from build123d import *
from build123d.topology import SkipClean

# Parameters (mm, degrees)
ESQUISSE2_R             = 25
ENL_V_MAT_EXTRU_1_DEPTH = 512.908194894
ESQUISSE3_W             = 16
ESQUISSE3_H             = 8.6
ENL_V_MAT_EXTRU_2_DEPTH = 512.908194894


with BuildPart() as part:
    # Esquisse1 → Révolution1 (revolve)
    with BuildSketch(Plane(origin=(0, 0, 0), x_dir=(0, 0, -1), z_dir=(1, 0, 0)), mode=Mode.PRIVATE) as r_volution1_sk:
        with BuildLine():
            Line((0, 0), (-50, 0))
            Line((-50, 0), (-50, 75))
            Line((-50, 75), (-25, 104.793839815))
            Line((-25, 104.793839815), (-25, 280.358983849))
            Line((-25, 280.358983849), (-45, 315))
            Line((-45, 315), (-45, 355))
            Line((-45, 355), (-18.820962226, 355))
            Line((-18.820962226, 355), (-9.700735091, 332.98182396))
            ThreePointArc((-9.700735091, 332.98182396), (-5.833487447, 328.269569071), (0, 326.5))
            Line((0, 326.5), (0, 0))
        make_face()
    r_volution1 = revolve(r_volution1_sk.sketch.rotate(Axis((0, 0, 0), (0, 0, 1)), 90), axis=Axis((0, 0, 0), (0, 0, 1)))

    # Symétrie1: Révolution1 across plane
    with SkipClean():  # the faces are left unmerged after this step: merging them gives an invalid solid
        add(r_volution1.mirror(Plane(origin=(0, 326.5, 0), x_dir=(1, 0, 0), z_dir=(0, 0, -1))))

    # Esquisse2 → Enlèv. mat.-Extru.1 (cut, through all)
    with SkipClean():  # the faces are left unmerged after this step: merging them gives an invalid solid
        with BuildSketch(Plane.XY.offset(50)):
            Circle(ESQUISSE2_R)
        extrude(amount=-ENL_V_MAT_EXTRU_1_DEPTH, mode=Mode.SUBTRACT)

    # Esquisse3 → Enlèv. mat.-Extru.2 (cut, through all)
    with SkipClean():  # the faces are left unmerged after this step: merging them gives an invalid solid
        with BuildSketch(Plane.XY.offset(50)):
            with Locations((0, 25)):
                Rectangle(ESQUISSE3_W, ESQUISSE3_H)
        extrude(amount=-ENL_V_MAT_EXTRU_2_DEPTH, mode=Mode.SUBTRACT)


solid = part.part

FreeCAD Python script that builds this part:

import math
import FreeCAD as App
import Part
import Sketcher
from FreeCAD import Vector
Q = App.Units.Quantity


def add_polygon(sketch, points):
    """Adds a closed chain of lines whose ends are joined by coincident constraints."""
    first, n = sketch.GeometryCount, len(points)
    for a, b in zip(points, points[1:] + points[:1]):
        sketch.addGeometry(Part.LineSegment(App.Vector(*a, 0), App.Vector(*b, 0)), False)
    for i in range(n):
        sketch.addConstraint(Sketcher.Constraint("Coincident", first + i, 2, first + (i + 1) % n, 1))

doc = App.newDocument("Part")
body = doc.addObject("PartDesign::Body", "Body")

# Sketch on YZ plane
sketch1 = body.newObject("Sketcher::SketchObject", "Sketch")
sketch1.AttachmentSupport = (doc.getObject("YZ_Plane"), [""])
sketch1.MapMode = "FlatFace"
sketch1.addGeometry([
    Part.LineSegment(Vector(0, 50, 0), Vector(0, 0, 0)),  # 0
    Part.LineSegment(Vector(0, 0, 0), Vector(326, 0, 0)),  # 1
    Part.ArcOfCircle(Part.Circle(Vector(337, 0, 0), Vector(0, 0, 1), 10), math.radians(112), math.radians(180)),  # 2
    Part.LineSegment(Vector(333, 10, 0), Vector(355, 19, 0)),  # 3
    Part.LineSegment(Vector(355, 19, 0), Vector(355, 45, 0)),  # 4
    Part.LineSegment(Vector(355, 45, 0), Vector(315, 45, 0)),  # 5
    Part.LineSegment(Vector(315, 45, 0), Vector(280, 25, 0)),  # 6
    Part.LineSegment(Vector(280, 25, 0), Vector(105, 25, 0)),  # 7
    Part.LineSegment(Vector(105, 25, 0), Vector(75, 50, 0)),  # 8
    Part.LineSegment(Vector(75, 50, 0), Vector(0, 50, 0)),  # 9
], False)
sketch1.addConstraint([
    Sketcher.Constraint("Coincident", 0, 2, 1, 1),
    Sketcher.Constraint("Coincident", 1, 2, 2, 2),
    Sketcher.Constraint("Tangent", 2, 1, 3, 1),
    Sketcher.Constraint("Coincident", 3, 2, 4, 1),
    Sketcher.Constraint("Coincident", 4, 2, 5, 1),
    Sketcher.Constraint("Coincident", 5, 2, 6, 1),
    Sketcher.Constraint("Coincident", 6, 2, 7, 1),
    Sketcher.Constraint("Coincident", 7, 2, 8, 1),
    Sketcher.Constraint("Coincident", 8, 2, 9, 1),
    Sketcher.Constraint("Coincident", 9, 2, 0, 1),
    Sketcher.Constraint("Vertical", 0),
    Sketcher.Constraint("Horizontal", 1),
    Sketcher.Constraint("Vertical", 4),
    Sketcher.Constraint("Horizontal", 5),
    Sketcher.Constraint("Horizontal", 7),
    Sketcher.Constraint("Horizontal", 9),
    Sketcher.Constraint("Coincident", 0, 2, -1, 1),
    Sketcher.Constraint("PointOnObject", 2, 3, -1),
    Sketcher.Constraint("Radius", 2, Q("10.5 mm")),
    Sketcher.Constraint("DistanceX", 5, 2, 5, 1, Q("40 mm")),
    Sketcher.Constraint("DistanceX", 9, 2, 9, 1, Q("75 mm")),
    Sketcher.Constraint("DistanceY", 0, 2, 0, 1, Q("50 mm")),
    Sketcher.Constraint("Angle", 6, Q("-150 deg")),
    Sketcher.Constraint("Angle", 8, Q("140 deg")),
    Sketcher.Constraint("Distance", 6, Q("40 mm")),
    Sketcher.Constraint("DistanceX", 1, 1, 1, 2, Q("326.5 mm")),
    Sketcher.Constraint("DistanceX", -1, 1, 3, 2, Q("355 mm")),
    Sketcher.Constraint("DistanceY", -1, 1, 4, 2, Q("45 mm")),
    Sketcher.Constraint("Angle", 3, Q("22.5 deg")),
])
revolution = body.newObject("PartDesign::Revolution", "Revolution")
revolution.Profile = sketch1
revolution.ReferenceAxis = (sketch1, ["V_Axis"])
revolution.Angle = 360
doc.recompute()

mirrored = body.newObject("PartDesign::Mirrored", "Mirrored")
mirrored.Originals = [revolution]
mirrored.MirrorPlane = (doc.getObject("XY_Plane"), [""])
body.Tip = mirrored

# Sketch on XY plane
sketch2 = body.newObject("Sketcher::SketchObject", "Sketch001")
sketch2.AttachmentSupport = (doc.getObject("XY_Plane"), [""])
sketch2.MapMode = "FlatFace"
sketch2.AttachmentOffset = App.Placement(Vector(0, 0, 50), App.Rotation())
sketch2.addGeometry(Part.Circle(Vector(0, 0, 0), Vector(0, 0, 1), 25), False)
sketch2.addConstraint([
    Sketcher.Constraint("Coincident", 0, 3, -1, 1),
    Sketcher.Constraint("Diameter", 0, Q("50 mm")),
])
pocket1 = body.newObject("PartDesign::Pocket", "Pocket")
pocket1.Profile = sketch2
pocket1.Type = "ThroughAll"

# Sketch on XY plane
sketch3 = body.newObject("Sketcher::SketchObject", "Sketch002")
sketch3.AttachmentSupport = (doc.getObject("XY_Plane"), [""])
sketch3.MapMode = "FlatFace"
sketch3.AttachmentOffset = App.Placement(Vector(0, 0, 50), App.Rotation())
add_polygon(sketch3, [(-8, 29), (-8, 21), (8, 21), (8, 29)])  # lines 0-3
sketch3.addConstraint([
    Sketcher.Constraint("Vertical", 0),
    Sketcher.Constraint("Horizontal", 1),
    Sketcher.Constraint("Vertical", 2),
    Sketcher.Constraint("Horizontal", 3),
    Sketcher.Constraint("DistanceX", 1, 1, 1, 2, Q("16 mm")),
    Sketcher.Constraint("DistanceY", 0, 2, 0, 1, Q("8.6 mm")),
    Sketcher.Constraint("DistanceX", 0, 2, -1, 1, Q("8 mm")),
    Sketcher.Constraint("DistanceY", -1, 1, 0, 2, Q("20.7 mm")),
])
pocket2 = body.newObject("PartDesign::Pocket", "Pocket001")
pocket2.Profile = sketch3
pocket2.Type = "ThroughAll"

doc.recompute()
